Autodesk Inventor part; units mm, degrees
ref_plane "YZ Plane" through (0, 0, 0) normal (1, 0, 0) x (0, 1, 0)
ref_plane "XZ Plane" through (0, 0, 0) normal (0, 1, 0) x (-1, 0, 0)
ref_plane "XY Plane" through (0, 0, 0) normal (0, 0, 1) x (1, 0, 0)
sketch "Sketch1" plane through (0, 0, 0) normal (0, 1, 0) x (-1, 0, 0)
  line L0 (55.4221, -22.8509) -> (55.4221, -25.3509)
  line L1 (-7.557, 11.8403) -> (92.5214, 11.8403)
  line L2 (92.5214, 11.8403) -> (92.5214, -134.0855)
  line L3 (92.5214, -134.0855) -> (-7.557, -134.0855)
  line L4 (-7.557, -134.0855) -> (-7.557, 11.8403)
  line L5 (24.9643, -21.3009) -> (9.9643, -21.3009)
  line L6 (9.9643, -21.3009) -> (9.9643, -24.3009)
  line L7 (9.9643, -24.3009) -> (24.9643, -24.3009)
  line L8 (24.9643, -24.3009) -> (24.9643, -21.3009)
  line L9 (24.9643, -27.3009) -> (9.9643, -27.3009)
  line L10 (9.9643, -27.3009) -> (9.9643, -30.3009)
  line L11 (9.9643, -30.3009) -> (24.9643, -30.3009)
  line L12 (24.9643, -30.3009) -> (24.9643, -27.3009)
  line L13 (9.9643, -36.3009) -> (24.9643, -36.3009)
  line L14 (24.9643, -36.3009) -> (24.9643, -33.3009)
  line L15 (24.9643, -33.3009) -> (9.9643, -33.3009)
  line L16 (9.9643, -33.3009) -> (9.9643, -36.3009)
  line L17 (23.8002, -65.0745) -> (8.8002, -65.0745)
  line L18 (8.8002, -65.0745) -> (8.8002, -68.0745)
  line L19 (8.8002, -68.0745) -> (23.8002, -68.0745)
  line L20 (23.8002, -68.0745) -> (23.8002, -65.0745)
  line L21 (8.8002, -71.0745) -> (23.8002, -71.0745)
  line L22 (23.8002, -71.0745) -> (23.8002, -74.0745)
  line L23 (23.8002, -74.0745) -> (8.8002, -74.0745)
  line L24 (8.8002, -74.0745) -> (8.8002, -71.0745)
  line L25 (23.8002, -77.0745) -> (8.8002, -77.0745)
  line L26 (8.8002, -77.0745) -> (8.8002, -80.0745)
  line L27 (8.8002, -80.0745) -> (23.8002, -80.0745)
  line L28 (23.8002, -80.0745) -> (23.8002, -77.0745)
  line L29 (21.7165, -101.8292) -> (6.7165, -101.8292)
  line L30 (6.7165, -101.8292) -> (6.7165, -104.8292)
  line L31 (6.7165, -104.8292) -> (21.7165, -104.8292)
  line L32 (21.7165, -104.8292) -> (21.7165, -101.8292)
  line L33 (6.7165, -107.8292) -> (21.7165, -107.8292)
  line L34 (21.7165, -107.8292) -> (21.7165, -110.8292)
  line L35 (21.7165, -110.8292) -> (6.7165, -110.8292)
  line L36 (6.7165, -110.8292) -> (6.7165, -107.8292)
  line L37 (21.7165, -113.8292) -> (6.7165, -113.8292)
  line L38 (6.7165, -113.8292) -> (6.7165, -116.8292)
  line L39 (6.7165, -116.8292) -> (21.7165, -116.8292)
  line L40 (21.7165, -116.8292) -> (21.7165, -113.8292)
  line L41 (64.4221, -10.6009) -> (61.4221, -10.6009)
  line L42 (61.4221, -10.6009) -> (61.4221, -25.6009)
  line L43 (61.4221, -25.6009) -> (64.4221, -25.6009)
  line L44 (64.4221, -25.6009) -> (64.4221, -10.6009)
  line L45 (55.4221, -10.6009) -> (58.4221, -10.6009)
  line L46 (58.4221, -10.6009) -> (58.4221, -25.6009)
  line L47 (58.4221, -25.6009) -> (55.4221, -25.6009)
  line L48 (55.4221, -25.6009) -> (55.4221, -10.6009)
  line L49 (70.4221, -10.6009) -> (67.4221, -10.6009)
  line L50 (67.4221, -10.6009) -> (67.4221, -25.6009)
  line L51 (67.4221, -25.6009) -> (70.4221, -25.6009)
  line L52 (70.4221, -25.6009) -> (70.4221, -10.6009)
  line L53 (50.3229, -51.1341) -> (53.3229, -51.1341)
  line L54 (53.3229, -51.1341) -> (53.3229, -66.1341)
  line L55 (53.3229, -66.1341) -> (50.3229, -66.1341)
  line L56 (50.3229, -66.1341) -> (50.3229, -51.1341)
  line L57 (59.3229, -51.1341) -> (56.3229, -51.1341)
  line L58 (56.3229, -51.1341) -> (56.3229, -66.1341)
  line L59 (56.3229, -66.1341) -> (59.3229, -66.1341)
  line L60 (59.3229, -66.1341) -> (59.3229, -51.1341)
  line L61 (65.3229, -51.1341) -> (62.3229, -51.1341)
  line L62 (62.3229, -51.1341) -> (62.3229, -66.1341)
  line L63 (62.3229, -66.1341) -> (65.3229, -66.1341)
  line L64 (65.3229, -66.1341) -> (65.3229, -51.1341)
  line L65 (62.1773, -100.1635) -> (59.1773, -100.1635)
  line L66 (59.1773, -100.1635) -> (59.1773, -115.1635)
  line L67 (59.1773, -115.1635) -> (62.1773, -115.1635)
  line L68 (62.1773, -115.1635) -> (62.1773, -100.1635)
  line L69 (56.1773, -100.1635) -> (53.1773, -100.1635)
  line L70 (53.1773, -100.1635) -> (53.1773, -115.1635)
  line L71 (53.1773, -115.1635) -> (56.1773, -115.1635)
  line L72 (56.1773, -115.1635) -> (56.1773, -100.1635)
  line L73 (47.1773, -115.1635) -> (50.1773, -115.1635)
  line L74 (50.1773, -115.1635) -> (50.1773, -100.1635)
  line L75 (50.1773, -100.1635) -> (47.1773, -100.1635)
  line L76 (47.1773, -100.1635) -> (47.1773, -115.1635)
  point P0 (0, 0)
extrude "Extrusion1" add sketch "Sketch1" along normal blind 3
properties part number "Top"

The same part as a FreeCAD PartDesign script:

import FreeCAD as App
import Part
import Sketcher

V = App.Vector
Q = App.Units.Quantity

doc = App.newDocument("Part")
body = doc.addObject("PartDesign::Body", "Body")

sketch1 = body.newObject("Sketcher::SketchObject", "Sketch")
sketch1.AttachmentSupport = (doc.getObject("XZ_Plane"), [""])
sketch1.MapMode = "FlatFace"
sketch1.addGeometry([
    Part.LineSegment(V(-92.5214, 11.8403, 0), V(7.557, 11.8403, 0)),
    Part.LineSegment(V(7.557, 11.8403, 0), V(7.557, -134.0855, 0)),
    Part.LineSegment(V(7.557, -134.0855, 0), V(-92.5214, -134.0855, 0)),
    Part.LineSegment(V(-92.5214, -134.0855, 0), V(-92.5214, 11.8403, 0)),
    Part.LineSegment(V(-6.7165, -113.8292, 0), V(-21.7165, -113.8292, 0)),
    Part.LineSegment(V(-21.7165, -113.8292, 0), V(-21.7165, -116.8292, 0)),
    Part.LineSegment(V(-21.7165, -116.8292, 0), V(-6.7165, -116.8292, 0)),
    Part.LineSegment(V(-6.7165, -116.8292, 0), V(-6.7165, -113.8292, 0)),
    Part.LineSegment(V(-6.7165, -110.8292, 0), V(-6.7165, -107.8292, 0)),
    Part.LineSegment(V(-6.7165, -107.8292, 0), V(-21.7165, -107.8292, 0)),
    Part.LineSegment(V(-21.7165, -107.8292, 0), V(-21.7165, -110.8292, 0)),
    Part.LineSegment(V(-21.7165, -110.8292, 0), V(-6.7165, -110.8292, 0)),
    Part.LineSegment(V(-6.7165, -101.8292, 0), V(-21.7165, -101.8292, 0)),
    Part.LineSegment(V(-21.7165, -101.8292, 0), V(-21.7165, -104.8292, 0)),
    Part.LineSegment(V(-21.7165, -104.8292, 0), V(-6.7165, -104.8292, 0)),
    Part.LineSegment(V(-6.7165, -104.8292, 0), V(-6.7165, -101.8292, 0)),
    Part.LineSegment(V(-8.8002, -77.0745, 0), V(-23.8002, -77.0745, 0)),
    Part.LineSegment(V(-23.8002, -77.0745, 0), V(-23.8002, -80.0745, 0)),
    Part.LineSegment(V(-23.8002, -80.0745, 0), V(-8.8002, -80.0745, 0)),
    Part.LineSegment(V(-8.8002, -80.0745, 0), V(-8.8002, -77.0745, 0)),
    Part.LineSegment(V(-8.8002, -74.0745, 0), V(-8.8002, -71.0745, 0)),
    Part.LineSegment(V(-8.8002, -71.0745, 0), V(-23.8002, -71.0745, 0)),
    Part.LineSegment(V(-23.8002, -71.0745, 0), V(-23.8002, -74.0745, 0)),
    Part.LineSegment(V(-23.8002, -74.0745, 0), V(-8.8002, -74.0745, 0)),
    Part.LineSegment(V(-8.8002, -65.0745, 0), V(-23.8002, -65.0745, 0)),
    Part.LineSegment(V(-23.8002, -65.0745, 0), V(-23.8002, -68.0745, 0)),
    Part.LineSegment(V(-23.8002, -68.0745, 0), V(-8.8002, -68.0745, 0)),
    Part.LineSegment(V(-8.8002, -68.0745, 0), V(-8.8002, -65.0745, 0)),
    Part.LineSegment(V(-50.1773, -115.1635, 0), V(-47.1773, -115.1635, 0)),
    Part.LineSegment(V(-47.1773, -115.1635, 0), V(-47.1773, -100.1635, 0)),
    Part.LineSegment(V(-47.1773, -100.1635, 0), V(-50.1773, -100.1635, 0)),
    Part.LineSegment(V(-50.1773, -100.1635, 0), V(-50.1773, -115.1635, 0)),
    Part.LineSegment(V(-53.1773, -100.1635, 0), V(-56.1773, -100.1635, 0)),
    Part.LineSegment(V(-56.1773, -100.1635, 0), V(-56.1773, -115.1635, 0)),
    Part.LineSegment(V(-56.1773, -115.1635, 0), V(-53.1773, -115.1635, 0)),
    Part.LineSegment(V(-53.1773, -115.1635, 0), V(-53.1773, -100.1635, 0)),
    Part.LineSegment(V(-59.1773, -100.1635, 0), V(-62.1773, -100.1635, 0)),
    Part.LineSegment(V(-62.1773, -100.1635, 0), V(-62.1773, -115.1635, 0)),
    Part.LineSegment(V(-62.1773, -115.1635, 0), V(-59.1773, -115.1635, 0)),
    Part.LineSegment(V(-59.1773, -115.1635, 0), V(-59.1773, -100.1635, 0)),
    Part.LineSegment(V(-24.9643, -36.3009, 0), V(-9.9643, -36.3009, 0)),
    Part.LineSegment(V(-9.9643, -36.3009, 0), V(-9.9643, -33.3009, 0)),
    Part.LineSegment(V(-9.9643, -33.3009, 0), V(-24.9643, -33.3009, 0)),
    Part.LineSegment(V(-24.9643, -33.3009, 0), V(-24.9643, -36.3009, 0)),
    Part.LineSegment(V(-9.9643, -27.3009, 0), V(-24.9643, -27.3009, 0)),
    Part.LineSegment(V(-24.9643, -27.3009, 0), V(-24.9643, -30.3009, 0)),
    Part.LineSegment(V(-24.9643, -30.3009, 0), V(-9.9643, -30.3009, 0)),
    Part.LineSegment(V(-9.9643, -30.3009, 0), V(-9.9643, -27.3009, 0)),
    Part.LineSegment(V(-9.9643, -21.3009, 0), V(-24.9643, -21.3009, 0)),
    Part.LineSegment(V(-24.9643, -21.3009, 0), V(-24.9643, -24.3009, 0)),
    Part.LineSegment(V(-24.9643, -24.3009, 0), V(-9.9643, -24.3009, 0)),
    Part.LineSegment(V(-9.9643, -24.3009, 0), V(-9.9643, -21.3009, 0)),
    Part.LineSegment(V(-50.3229, -66.1341, 0), V(-50.3229, -51.1341, 0)),
    Part.LineSegment(V(-50.3229, -51.1341, 0), V(-53.3229, -51.1341, 0)),
    Part.LineSegment(V(-53.3229, -51.1341, 0), V(-53.3229, -66.1341, 0)),
    Part.LineSegment(V(-53.3229, -66.1341, 0), V(-50.3229, -66.1341, 0)),
    Part.LineSegment(V(-56.3229, -51.1341, 0), V(-59.3229, -51.1341, 0)),
    Part.LineSegment(V(-59.3229, -51.1341, 0), V(-59.3229, -66.1341, 0)),
    Part.LineSegment(V(-59.3229, -66.1341, 0), V(-56.3229, -66.1341, 0)),
    Part.LineSegment(V(-56.3229, -66.1341, 0), V(-56.3229, -51.1341, 0)),
    Part.LineSegment(V(-62.3229, -51.1341, 0), V(-65.3229, -51.1341, 0)),
    Part.LineSegment(V(-65.3229, -51.1341, 0), V(-65.3229, -66.1341, 0)),
    Part.LineSegment(V(-65.3229, -66.1341, 0), V(-62.3229, -66.1341, 0)),
    Part.LineSegment(V(-62.3229, -66.1341, 0), V(-62.3229, -51.1341, 0)),
    Part.LineSegment(V(-55.4221, -25.6009, 0), V(-55.4221, -10.6009, 0)),
    Part.LineSegment(V(-55.4221, -10.6009, 0), V(-58.4221, -10.6009, 0)),
    Part.LineSegment(V(-58.4221, -10.6009, 0), V(-58.4221, -25.6009, 0)),
    Part.LineSegment(V(-58.4221, -25.6009, 0), V(-55.4221, -25.6009, 0)),
    Part.LineSegment(V(-61.4221, -10.6009, 0), V(-64.4221, -10.6009, 0)),
    Part.LineSegment(V(-64.4221, -10.6009, 0), V(-64.4221, -25.6009, 0)),
    Part.LineSegment(V(-64.4221, -25.6009, 0), V(-61.4221, -25.6009, 0)),
    Part.LineSegment(V(-61.4221, -25.6009, 0), V(-61.4221, -10.6009, 0)),
    Part.LineSegment(V(-67.4221, -10.6009, 0), V(-70.4221, -10.6009, 0)),
    Part.LineSegment(V(-70.4221, -10.6009, 0), V(-70.4221, -25.6009, 0)),
    Part.LineSegment(V(-70.4221, -25.6009, 0), V(-67.4221, -25.6009, 0)),
    Part.LineSegment(V(-67.4221, -25.6009, 0), V(-67.4221, -10.6009, 0)),
], False)
sketch1.addConstraint([
    Sketcher.Constraint("Coincident", 0, 2, 1, 1),
    Sketcher.Constraint("Coincident", 1, 2, 2, 1),
    Sketcher.Constraint("Coincident", 2, 2, 3, 1),
    Sketcher.Constraint("Coincident", 3, 2, 0, 1),
    Sketcher.Constraint("Coincident", 4, 2, 5, 1),
    Sketcher.Constraint("Coincident", 5, 2, 6, 1),
    Sketcher.Constraint("Coincident", 6, 2, 7, 1),
    Sketcher.Constraint("Coincident", 7, 2, 4, 1),
    Sketcher.Constraint("Coincident", 8, 2, 9, 1),
    Sketcher.Constraint("Coincident", 9, 2, 10, 1),
    Sketcher.Constraint("Coincident", 10, 2, 11, 1),
    Sketcher.Constraint("Coincident", 11, 2, 8, 1),
    Sketcher.Constraint("Coincident", 12, 2, 13, 1),
    Sketcher.Constraint("Coincident", 13, 2, 14, 1),
    Sketcher.Constraint("Coincident", 14, 2, 15, 1),
    Sketcher.Constraint("Coincident", 15, 2, 12, 1),
    Sketcher.Constraint("Coincident", 16, 2, 17, 1),
    Sketcher.Constraint("Coincident", 17, 2, 18, 1),
    Sketcher.Constraint("Coincident", 18, 2, 19, 1),
    Sketcher.Constraint("Coincident", 19, 2, 16, 1),
    Sketcher.Constraint("Coincident", 20, 2, 21, 1),
    Sketcher.Constraint("Coincident", 21, 2, 22, 1),
    Sketcher.Constraint("Coincident", 22, 2, 23, 1),
    Sketcher.Constraint("Coincident", 23, 2, 20, 1),
    Sketcher.Constraint("Coincident", 24, 2, 25, 1),
    Sketcher.Constraint("Coincident", 25, 2, 26, 1),
    Sketcher.Constraint("Coincident", 26, 2, 27, 1),
    Sketcher.Constraint("Coincident", 27, 2, 24, 1),
    Sketcher.Constraint("Coincident", 28, 2, 29, 1),
    Sketcher.Constraint("Coincident", 29, 2, 30, 1),
    Sketcher.Constraint("Coincident", 30, 2, 31, 1),
    Sketcher.Constraint("Coincident", 31, 2, 28, 1),
    Sketcher.Constraint("Coincident", 32, 2, 33, 1),
    Sketcher.Constraint("Coincident", 33, 2, 34, 1),
    Sketcher.Constraint("Coincident", 34, 2, 35, 1),
    Sketcher.Constraint("Coincident", 35, 2, 32, 1),
    Sketcher.Constraint("Coincident", 36, 2, 37, 1),
    Sketcher.Constraint("Coincident", 37, 2, 38, 1),
    Sketcher.Constraint("Coincident", 38, 2, 39, 1),
    Sketcher.Constraint("Coincident", 39, 2, 36, 1),
    Sketcher.Constraint("Coincident", 40, 2, 41, 1),
    Sketcher.Constraint("Coincident", 41, 2, 42, 1),
    Sketcher.Constraint("Coincident", 42, 2, 43, 1),
    Sketcher.Constraint("Coincident", 43, 2, 40, 1),
    Sketcher.Constraint("Coincident", 44, 2, 45, 1),
    Sketcher.Constraint("Coincident", 45, 2, 46, 1),
    Sketcher.Constraint("Coincident", 46, 2, 47, 1),
    Sketcher.Constraint("Coincident", 47, 2, 44, 1),
    Sketcher.Constraint("Coincident", 48, 2, 49, 1),
    Sketcher.Constraint("Coincident", 49, 2, 50, 1),
    Sketcher.Constraint("Coincident", 50, 2, 51, 1),
    Sketcher.Constraint("Coincident", 51, 2, 48, 1),
    Sketcher.Constraint("Coincident", 52, 2, 53, 1),
    Sketcher.Constraint("Coincident", 53, 2, 54, 1),
    Sketcher.Constraint("Coincident", 54, 2, 55, 1),
    Sketcher.Constraint("Coincident", 55, 2, 52, 1),
    Sketcher.Constraint("Coincident", 56, 2, 57, 1),
    Sketcher.Constraint("Coincident", 57, 2, 58, 1),
    Sketcher.Constraint("Coincident", 58, 2, 59, 1),
    Sketcher.Constraint("Coincident", 59, 2, 56, 1),
    Sketcher.Constraint("Coincident", 60, 2, 61, 1),
    Sketcher.Constraint("Coincident", 61, 2, 62, 1),
    Sketcher.Constraint("Coincident", 62, 2, 63, 1),
    Sketcher.Constraint("Coincident", 63, 2, 60, 1),
    Sketcher.Constraint("Coincident", 64, 2, 65, 1),
    Sketcher.Constraint("Coincident", 65, 2, 66, 1),
    Sketcher.Constraint("Coincident", 66, 2, 67, 1),
    Sketcher.Constraint("Coincident", 67, 2, 64, 1),
    Sketcher.Constraint("Coincident", 68, 2, 69, 1),
    Sketcher.Constraint("Coincident", 69, 2, 70, 1),
    Sketcher.Constraint("Coincident", 70, 2, 71, 1),
    Sketcher.Constraint("Coincident", 71, 2, 68, 1),
    Sketcher.Constraint("Coincident", 72, 2, 73, 1),
    Sketcher.Constraint("Coincident", 73, 2, 74, 1),
    Sketcher.Constraint("Coincident", 74, 2, 75, 1),
    Sketcher.Constraint("Coincident", 75, 2, 72, 1),
    Sketcher.Constraint("Horizontal", 0),
    Sketcher.Constraint("Vertical", 1),
    Sketcher.Constraint("Horizontal", 2),
    Sketcher.Constraint("Vertical", 3),
    Sketcher.Constraint("Horizontal", 4),
    Sketcher.Constraint("Vertical", 5),
    Sketcher.Constraint("Horizontal", 6),
    Sketcher.Constraint("Vertical", 7),
    Sketcher.Constraint("Vertical", 8),
    Sketcher.Constraint("Horizontal", 9),
    Sketcher.Constraint("Vertical", 10),
    Sketcher.Constraint("Horizontal", 11),
    Sketcher.Constraint("Horizontal", 12),
    Sketcher.Constraint("Vertical", 13),
    Sketcher.Constraint("Horizontal", 14),
    Sketcher.Constraint("Vertical", 15),
    Sketcher.Constraint("Horizontal", 16),
    Sketcher.Constraint("Vertical", 17),
    Sketcher.Constraint("Horizontal", 18),
    Sketcher.Constraint("Vertical", 19),
    Sketcher.Constraint("Vertical", 20),
    Sketcher.Constraint("Horizontal", 21),
    Sketcher.Constraint("Vertical", 22),
    Sketcher.Constraint("Horizontal", 23),
    Sketcher.Constraint("Horizontal", 24),
    Sketcher.Constraint("Vertical", 25),
    Sketcher.Constraint("Horizontal", 26),
    Sketcher.Constraint("Vertical", 27),
    Sketcher.Constraint("Horizontal", 28),
    Sketcher.Constraint("Vertical", 29),
    Sketcher.Constraint("Horizontal", 30),
    Sketcher.Constraint("Vertical", 31),
    Sketcher.Constraint("Horizontal", 32),
    Sketcher.Constraint("Vertical", 33),
    Sketcher.Constraint("Horizontal", 34),
    Sketcher.Constraint("Vertical", 35),
    Sketcher.Constraint("Horizontal", 36),
    Sketcher.Constraint("Vertical", 37),
    Sketcher.Constraint("Horizontal", 38),
    Sketcher.Constraint("Vertical", 39),
    Sketcher.Constraint("Horizontal", 40),
    Sketcher.Constraint("Vertical", 41),
    Sketcher.Constraint("Horizontal", 42),
    Sketcher.Constraint("Vertical", 43),
    Sketcher.Constraint("Horizontal", 44),
    Sketcher.Constraint("Vertical", 45),
    Sketcher.Constraint("Horizontal", 46),
    Sketcher.Constraint("Vertical", 47),
    Sketcher.Constraint("Horizontal", 48),
    Sketcher.Constraint("Vertical", 49),
    Sketcher.Constraint("Horizontal", 50),
    Sketcher.Constraint("Vertical", 51),
    Sketcher.Constraint("Vertical", 52),
    Sketcher.Constraint("Horizontal", 53),
    Sketcher.Constraint("Vertical", 54),
    Sketcher.Constraint("Horizontal", 55),
    Sketcher.Constraint("Horizontal", 56),
    Sketcher.Constraint("Vertical", 57),
    Sketcher.Constraint("Horizontal", 58),
    Sketcher.Constraint("Vertical", 59),
    Sketcher.Constraint("Horizontal", 60),
    Sketcher.Constraint("Vertical", 61),
    Sketcher.Constraint("Horizontal", 62),
    Sketcher.Constraint("Vertical", 63),
    Sketcher.Constraint("Vertical", 64),
    Sketcher.Constraint("Horizontal", 65),
    Sketcher.Constraint("Vertical", 66),
    Sketcher.Constraint("Horizontal", 67),
    Sketcher.Constraint("Horizontal", 68),
    Sketcher.Constraint("Vertical", 69),
    Sketcher.Constraint("Horizontal", 70),
    Sketcher.Constraint("Vertical", 71),
    Sketcher.Constraint("Horizontal", 72),
    Sketcher.Constraint("Vertical", 73),
    Sketcher.Constraint("Horizontal", 74),
    Sketcher.Constraint("Vertical", 75),
    Sketcher.Constraint("Horizontal", 30, 2, 32, 2),
    Sketcher.Constraint("Horizontal", 31, 2, 33, 2),
    Sketcher.Constraint("Horizontal", 35, 2, 36, 2),
    Sketcher.Constraint("Horizontal", 34, 2, 37, 2),
    Sketcher.Constraint("Horizontal", 53, 2, 56, 2),
    Sketcher.Constraint("Horizontal", 55, 2, 57, 2),
    Sketcher.Constraint("Horizontal", 59, 2, 60, 2),
    Sketcher.Constraint("Horizontal", 58, 2, 61, 2),
    Sketcher.Constraint("Horizontal", 65, 2, 68, 2),
    Sketcher.Constraint("Horizontal", 67, 2, 69, 2),
    Sketcher.Constraint("Horizontal", 71, 2, 72, 2),
    Sketcher.Constraint("Horizontal", 70, 2, 73, 2),
    Sketcher.Constraint("Vertical", 7, 2, 8, 2),
    Sketcher.Constraint("Vertical", 5, 2, 9, 2),
    Sketcher.Constraint("Vertical", 10, 2, 12, 2),
    Sketcher.Constraint("Vertical", 11, 2, 14, 2),
    Sketcher.Constraint("Vertical", 19, 2, 20, 2),
    Sketcher.Constraint("Vertical", 17, 2, 21, 2),
    Sketcher.Constraint("Vertical", 22, 2, 24, 2),
    Sketcher.Constraint("Vertical", 23, 2, 26, 2),
    Sketcher.Constraint("Vertical", 43, 2, 44, 2),
    Sketcher.Constraint("Vertical", 41, 2, 46, 2),
    Sketcher.Constraint("Vertical", 45, 2, 48, 2),
    Sketcher.Constraint("Vertical", 47, 2, 50, 2),
    Sketcher.Constraint("Equal", 14, 16),
    Sketcher.Constraint("Equal", 30, 32),
    Sketcher.Constraint("Equal", 34, 36),
    Sketcher.Constraint("Equal", 26, 40),
    Sketcher.Constraint("Equal", 38, 53),
    Sketcher.Constraint("Equal", 55, 56),
    Sketcher.Constraint("Equal", 58, 60),
    Sketcher.Constraint("Equal", 62, 65),
    Sketcher.Constraint("Equal", 67, 68),
    Sketcher.Constraint("Equal", 70, 72),
    Sketcher.Constraint("Equal", 74, 5),
    Sketcher.Constraint("Equal", 7, 8),
    Sketcher.Constraint("Equal", 10, 13),
    Sketcher.Constraint("Equal", 15, 17),
    Sketcher.Constraint("Equal", 19, 20),
    Sketcher.Constraint("Equal", 22, 25),
    Sketcher.Constraint("Equal", 50, 29),
    Sketcher.Constraint("Equal", 27, 41),
    Sketcher.Constraint("Equal", 43, 45),
    Sketcher.Constraint("Equal", 47, 49),
    Sketcher.Constraint("Equal", 39, 52),
    Sketcher.Constraint("Equal", 63, 64),
    Sketcher.Constraint("DistanceX", 4, 2, 4, 1, Q("15 mm")),
    Sketcher.Constraint("DistanceX", 28, 1, 28, 2, Q("3 mm")),
    Sketcher.Constraint("DistanceX", 0, 1, 0, 2, Q("100.0784 mm")),
    Sketcher.Constraint("DistanceY", 1, 2, 1, 1, Q("145.9258 mm")),
    Sketcher.Constraint("DistanceX", -1, 1, 0, 2, Q("7.557 mm")),
    Sketcher.Constraint("DistanceY", 40, 2, -1, 1, Q("36.301 mm")),
    Sketcher.Constraint("DistanceY", 44, 2, -1, 1, Q("27.301 mm")),
    Sketcher.Constraint("DistanceY", 48, 2, -1, 1, Q("21.301 mm")),
    Sketcher.Constraint("DistanceX", 52, 2, -1, 1, Q("50.323 mm")),
    Sketcher.Constraint("DistanceY", 52, 2, -1, 1, Q("51.134 mm")),
    Sketcher.Constraint("DistanceX", 56, 2, -1, 1, Q("59.323 mm")),
    Sketcher.Constraint("DistanceX", 60, 2, -1, 1, Q("65.323 mm")),
    Sketcher.Constraint("DistanceX", 64, 2, -1, 1, Q("55.422 mm")),
    Sketcher.Constraint("DistanceY", 64, 2, -1, 1, Q("10.601 mm")),
    Sketcher.Constraint("DistanceX", 68, 2, -1, 1, Q("64.422 mm")),
    Sketcher.Constraint("DistanceX", 72, 2, -1, 1, Q("70.422 mm")),
    Sketcher.Constraint("DistanceY", -1, 1, 0, 2, Q("11.8403 mm")),
    Sketcher.Constraint("DistanceX", 4, 2, -1, 1, Q("21.7165 mm")),
    Sketcher.Constraint("DistanceY", 4, 2, -1, 1, Q("113.8292 mm")),
    Sketcher.Constraint("DistanceY", 8, 2, -1, 1, Q("107.8292 mm")),
    Sketcher.Constraint("DistanceY", 12, 2, -1, 1, Q("101.8292 mm")),
    Sketcher.Constraint("DistanceX", 16, 2, -1, 1, Q("23.8002 mm")),
    Sketcher.Constraint("DistanceY", 16, 2, -1, 1, Q("77.0745 mm")),
    Sketcher.Constraint("DistanceY", 20, 2, -1, 1, Q("71.0745 mm")),
    Sketcher.Constraint("DistanceY", 24, 2, -1, 1, Q("65.0745 mm")),
    Sketcher.Constraint("DistanceX", 28, 2, -1, 1, Q("47.1773 mm")),
    Sketcher.Constraint("DistanceY", 28, 2, -1, 1, Q("115.1635 mm")),
    Sketcher.Constraint("DistanceX", 32, 2, -1, 1, Q("56.1773 mm")),
    Sketcher.Constraint("DistanceX", 36, 2, -1, 1, Q("62.1773 mm")),
    Sketcher.Constraint("DistanceX", 40, 2, -1, 1, Q("9.9643 mm")),
])
pad1 = body.newObject("PartDesign::Pad", "Pad")
pad1.Profile = sketch1
pad1.Length = 3
pad1.Reversed = True

doc.recompute()
